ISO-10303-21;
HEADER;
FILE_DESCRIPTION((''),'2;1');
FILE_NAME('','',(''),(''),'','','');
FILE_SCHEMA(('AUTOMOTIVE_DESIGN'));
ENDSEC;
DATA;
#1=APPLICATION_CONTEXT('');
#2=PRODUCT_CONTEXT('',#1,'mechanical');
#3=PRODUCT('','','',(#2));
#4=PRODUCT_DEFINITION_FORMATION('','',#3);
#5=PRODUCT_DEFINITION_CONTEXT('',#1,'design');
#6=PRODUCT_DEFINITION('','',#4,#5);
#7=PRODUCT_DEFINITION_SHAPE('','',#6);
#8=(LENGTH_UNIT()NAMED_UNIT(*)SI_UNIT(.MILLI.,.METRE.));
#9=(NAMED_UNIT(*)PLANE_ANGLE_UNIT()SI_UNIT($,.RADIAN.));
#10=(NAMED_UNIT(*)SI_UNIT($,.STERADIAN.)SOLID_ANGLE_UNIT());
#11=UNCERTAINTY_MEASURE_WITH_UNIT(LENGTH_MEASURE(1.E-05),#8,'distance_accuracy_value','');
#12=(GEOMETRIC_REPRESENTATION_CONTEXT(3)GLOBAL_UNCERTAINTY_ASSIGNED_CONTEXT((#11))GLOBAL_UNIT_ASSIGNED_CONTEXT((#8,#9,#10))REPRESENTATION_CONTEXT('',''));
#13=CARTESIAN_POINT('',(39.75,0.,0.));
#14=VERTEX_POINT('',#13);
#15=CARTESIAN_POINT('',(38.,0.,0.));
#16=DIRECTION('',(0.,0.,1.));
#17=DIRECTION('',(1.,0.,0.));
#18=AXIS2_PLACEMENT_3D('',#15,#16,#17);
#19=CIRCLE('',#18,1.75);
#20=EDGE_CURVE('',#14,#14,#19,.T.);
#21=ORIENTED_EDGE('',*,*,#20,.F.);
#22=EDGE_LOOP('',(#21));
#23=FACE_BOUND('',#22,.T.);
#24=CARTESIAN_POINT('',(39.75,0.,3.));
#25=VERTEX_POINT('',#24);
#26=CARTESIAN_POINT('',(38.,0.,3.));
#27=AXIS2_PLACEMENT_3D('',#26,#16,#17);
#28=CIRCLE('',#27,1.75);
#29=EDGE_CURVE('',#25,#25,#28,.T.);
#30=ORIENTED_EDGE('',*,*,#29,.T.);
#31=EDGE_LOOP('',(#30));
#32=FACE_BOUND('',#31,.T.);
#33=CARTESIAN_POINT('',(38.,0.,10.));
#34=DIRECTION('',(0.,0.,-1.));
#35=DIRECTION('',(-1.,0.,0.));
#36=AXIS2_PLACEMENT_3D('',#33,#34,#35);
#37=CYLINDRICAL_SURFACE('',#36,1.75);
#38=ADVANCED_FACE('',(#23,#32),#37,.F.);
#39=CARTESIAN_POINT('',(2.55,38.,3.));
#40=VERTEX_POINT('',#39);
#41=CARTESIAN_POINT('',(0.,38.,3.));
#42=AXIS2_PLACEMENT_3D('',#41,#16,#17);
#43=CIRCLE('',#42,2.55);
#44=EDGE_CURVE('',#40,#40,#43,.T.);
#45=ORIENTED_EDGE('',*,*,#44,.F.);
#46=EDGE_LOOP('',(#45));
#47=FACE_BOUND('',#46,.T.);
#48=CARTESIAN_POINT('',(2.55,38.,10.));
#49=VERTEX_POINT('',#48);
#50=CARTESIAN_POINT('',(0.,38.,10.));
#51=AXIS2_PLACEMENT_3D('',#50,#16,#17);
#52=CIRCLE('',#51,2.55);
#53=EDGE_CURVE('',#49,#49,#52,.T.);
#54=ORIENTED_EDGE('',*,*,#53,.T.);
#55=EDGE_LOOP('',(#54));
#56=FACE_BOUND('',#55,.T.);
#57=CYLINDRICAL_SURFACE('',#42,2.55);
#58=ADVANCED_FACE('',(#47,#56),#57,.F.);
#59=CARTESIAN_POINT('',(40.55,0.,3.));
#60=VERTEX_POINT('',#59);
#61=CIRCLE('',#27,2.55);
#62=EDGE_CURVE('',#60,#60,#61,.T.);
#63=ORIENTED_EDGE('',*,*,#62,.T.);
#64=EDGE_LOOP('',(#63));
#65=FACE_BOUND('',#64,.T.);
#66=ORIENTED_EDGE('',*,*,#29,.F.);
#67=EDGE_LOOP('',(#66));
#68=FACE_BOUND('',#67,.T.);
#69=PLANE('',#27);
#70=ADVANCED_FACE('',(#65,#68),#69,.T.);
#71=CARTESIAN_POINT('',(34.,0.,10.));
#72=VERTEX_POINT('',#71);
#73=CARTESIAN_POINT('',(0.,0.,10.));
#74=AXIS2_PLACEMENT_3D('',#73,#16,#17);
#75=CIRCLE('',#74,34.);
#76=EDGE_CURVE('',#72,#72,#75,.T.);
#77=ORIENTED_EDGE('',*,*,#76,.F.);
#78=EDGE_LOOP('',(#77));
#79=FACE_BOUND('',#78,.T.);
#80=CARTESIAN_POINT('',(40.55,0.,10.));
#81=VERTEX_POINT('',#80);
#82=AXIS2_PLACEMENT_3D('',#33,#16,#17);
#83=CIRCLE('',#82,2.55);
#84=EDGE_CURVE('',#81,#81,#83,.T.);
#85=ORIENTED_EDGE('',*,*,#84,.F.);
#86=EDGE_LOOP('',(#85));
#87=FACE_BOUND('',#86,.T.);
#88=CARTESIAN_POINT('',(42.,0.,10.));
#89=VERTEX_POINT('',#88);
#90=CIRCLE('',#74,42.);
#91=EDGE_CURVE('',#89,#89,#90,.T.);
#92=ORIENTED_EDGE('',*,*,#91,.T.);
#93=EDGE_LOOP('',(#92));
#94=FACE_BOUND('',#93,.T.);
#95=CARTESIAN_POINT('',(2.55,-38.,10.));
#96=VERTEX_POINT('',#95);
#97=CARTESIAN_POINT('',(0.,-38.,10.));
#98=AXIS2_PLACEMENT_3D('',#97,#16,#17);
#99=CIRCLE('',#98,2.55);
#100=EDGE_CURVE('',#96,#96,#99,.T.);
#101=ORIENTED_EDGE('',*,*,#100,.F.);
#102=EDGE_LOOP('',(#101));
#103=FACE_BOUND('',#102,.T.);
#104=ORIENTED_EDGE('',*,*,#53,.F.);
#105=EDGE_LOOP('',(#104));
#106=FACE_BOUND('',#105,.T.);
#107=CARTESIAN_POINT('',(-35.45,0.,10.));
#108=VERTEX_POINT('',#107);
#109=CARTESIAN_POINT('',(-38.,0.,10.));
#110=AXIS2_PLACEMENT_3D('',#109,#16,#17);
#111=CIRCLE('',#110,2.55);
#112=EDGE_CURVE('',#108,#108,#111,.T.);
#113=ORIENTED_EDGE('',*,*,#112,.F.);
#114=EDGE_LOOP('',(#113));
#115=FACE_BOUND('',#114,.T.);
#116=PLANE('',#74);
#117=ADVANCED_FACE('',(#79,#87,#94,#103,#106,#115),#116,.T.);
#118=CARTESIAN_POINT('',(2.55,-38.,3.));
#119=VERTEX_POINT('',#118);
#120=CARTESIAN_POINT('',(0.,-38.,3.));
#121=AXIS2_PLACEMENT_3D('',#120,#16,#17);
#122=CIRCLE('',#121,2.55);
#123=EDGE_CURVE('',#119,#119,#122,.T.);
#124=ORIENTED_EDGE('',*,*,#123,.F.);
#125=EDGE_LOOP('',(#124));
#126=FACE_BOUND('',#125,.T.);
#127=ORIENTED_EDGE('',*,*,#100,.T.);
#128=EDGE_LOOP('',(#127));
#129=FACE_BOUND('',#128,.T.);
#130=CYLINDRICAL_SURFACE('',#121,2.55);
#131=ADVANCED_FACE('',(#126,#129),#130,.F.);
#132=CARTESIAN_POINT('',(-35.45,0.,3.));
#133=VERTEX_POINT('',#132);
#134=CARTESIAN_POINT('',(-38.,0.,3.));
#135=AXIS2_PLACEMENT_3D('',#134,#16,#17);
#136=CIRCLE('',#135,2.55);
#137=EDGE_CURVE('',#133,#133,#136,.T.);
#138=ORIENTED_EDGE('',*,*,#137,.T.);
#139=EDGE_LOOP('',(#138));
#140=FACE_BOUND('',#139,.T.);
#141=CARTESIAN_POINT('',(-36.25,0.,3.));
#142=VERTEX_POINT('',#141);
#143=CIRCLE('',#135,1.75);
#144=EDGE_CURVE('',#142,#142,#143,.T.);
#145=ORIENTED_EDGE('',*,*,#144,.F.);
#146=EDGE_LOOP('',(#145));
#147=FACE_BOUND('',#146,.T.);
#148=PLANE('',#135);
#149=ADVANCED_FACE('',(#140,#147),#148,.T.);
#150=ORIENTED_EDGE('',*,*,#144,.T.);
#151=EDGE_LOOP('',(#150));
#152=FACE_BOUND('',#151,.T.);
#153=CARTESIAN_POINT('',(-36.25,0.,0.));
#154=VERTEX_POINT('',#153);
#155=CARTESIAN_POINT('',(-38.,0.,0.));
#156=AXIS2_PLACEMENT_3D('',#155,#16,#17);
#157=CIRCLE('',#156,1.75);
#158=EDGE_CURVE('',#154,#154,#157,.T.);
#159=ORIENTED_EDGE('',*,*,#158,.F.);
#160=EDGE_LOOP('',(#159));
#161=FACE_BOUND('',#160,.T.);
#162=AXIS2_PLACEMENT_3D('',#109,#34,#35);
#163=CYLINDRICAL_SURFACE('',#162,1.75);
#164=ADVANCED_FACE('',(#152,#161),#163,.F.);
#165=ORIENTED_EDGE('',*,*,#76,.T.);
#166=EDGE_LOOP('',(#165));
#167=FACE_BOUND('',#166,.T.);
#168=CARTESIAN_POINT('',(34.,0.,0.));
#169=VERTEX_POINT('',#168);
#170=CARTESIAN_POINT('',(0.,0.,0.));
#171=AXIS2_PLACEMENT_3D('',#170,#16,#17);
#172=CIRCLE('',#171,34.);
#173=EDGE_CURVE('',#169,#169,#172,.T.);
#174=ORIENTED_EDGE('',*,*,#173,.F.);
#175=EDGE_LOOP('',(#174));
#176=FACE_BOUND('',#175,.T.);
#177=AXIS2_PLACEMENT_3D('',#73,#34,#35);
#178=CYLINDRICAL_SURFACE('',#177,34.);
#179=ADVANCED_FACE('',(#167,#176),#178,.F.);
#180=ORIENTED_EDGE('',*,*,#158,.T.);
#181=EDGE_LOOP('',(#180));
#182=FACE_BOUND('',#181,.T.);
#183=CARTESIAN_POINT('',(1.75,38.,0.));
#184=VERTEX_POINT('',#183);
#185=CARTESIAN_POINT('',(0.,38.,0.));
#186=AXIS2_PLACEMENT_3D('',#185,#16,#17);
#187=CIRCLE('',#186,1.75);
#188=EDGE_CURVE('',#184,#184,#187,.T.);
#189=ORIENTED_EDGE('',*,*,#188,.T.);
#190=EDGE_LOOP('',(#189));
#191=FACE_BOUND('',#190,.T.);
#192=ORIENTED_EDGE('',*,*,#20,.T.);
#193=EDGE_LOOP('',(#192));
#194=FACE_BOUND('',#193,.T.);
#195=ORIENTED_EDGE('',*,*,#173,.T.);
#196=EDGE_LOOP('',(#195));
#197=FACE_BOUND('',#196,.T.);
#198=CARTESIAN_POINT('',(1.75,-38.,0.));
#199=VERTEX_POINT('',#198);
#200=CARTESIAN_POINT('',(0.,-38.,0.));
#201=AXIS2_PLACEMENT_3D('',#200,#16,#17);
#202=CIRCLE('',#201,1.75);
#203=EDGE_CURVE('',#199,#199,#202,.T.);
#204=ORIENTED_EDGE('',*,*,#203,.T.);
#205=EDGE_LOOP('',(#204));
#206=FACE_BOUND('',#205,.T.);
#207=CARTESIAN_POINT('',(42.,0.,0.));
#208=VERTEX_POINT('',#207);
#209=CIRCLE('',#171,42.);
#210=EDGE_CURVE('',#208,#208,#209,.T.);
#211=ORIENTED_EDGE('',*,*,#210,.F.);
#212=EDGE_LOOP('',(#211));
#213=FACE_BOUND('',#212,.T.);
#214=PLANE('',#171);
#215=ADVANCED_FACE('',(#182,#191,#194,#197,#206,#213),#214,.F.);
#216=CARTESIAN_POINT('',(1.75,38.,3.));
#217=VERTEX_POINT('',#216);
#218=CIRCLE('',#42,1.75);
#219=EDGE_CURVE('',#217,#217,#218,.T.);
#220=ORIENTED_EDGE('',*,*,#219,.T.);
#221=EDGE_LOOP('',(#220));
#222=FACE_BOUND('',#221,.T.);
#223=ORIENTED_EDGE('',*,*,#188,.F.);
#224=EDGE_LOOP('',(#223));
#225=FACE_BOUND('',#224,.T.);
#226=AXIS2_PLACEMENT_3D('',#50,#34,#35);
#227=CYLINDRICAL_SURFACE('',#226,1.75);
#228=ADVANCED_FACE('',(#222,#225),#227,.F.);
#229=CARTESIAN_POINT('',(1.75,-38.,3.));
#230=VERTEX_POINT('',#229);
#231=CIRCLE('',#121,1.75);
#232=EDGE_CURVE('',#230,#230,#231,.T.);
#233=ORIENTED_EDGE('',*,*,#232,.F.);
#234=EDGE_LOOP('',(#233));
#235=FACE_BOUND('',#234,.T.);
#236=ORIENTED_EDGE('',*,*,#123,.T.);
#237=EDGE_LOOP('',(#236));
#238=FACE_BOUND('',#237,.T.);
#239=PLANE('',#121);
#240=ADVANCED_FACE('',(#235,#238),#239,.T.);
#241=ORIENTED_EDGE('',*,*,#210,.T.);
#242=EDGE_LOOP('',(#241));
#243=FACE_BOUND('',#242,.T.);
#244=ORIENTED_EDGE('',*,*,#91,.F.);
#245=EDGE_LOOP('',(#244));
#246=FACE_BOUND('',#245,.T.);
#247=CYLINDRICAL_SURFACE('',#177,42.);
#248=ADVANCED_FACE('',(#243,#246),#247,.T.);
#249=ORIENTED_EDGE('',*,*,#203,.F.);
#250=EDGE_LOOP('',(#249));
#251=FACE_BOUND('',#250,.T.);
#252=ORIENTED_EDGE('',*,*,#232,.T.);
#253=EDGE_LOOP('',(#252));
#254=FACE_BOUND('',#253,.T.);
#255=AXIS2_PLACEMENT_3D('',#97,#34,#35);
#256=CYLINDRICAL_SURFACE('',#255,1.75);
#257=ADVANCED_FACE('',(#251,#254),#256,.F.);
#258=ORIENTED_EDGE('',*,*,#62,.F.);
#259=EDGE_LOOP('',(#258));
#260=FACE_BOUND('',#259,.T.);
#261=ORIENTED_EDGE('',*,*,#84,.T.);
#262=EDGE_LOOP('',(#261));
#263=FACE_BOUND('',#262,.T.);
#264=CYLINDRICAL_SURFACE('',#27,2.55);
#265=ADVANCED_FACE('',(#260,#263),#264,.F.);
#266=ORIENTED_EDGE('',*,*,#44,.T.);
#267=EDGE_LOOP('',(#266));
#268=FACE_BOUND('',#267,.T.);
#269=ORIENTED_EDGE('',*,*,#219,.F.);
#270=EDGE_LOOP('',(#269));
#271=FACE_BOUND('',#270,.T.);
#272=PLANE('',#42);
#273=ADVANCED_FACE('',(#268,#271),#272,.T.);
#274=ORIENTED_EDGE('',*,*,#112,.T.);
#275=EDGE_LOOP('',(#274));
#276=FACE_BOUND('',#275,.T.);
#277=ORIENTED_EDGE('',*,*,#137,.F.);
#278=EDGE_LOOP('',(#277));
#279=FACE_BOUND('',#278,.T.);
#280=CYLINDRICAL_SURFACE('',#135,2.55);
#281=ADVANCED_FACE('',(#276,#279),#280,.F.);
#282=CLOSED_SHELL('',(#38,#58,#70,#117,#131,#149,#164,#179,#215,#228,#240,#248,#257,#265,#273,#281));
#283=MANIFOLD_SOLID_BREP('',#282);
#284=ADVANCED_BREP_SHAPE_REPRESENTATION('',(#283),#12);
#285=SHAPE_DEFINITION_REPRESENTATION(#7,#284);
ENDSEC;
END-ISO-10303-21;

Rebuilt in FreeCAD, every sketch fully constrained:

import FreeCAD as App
import Part
import Sketcher
from FreeCAD import Vector
Q = App.Units.Quantity

doc = App.newDocument("Part")
body = doc.addObject("PartDesign::Body", "Body")

# Sketch on XY plane
sketch1 = doc.addObject("Sketcher::SketchObject", "Sketch")
body.addObject(sketch1)
sketch1.AttachmentSupport = (doc.XY_Plane, [""])
sketch1.MapMode = "FlatFace"
sketch1.addGeometry([
    Part.Circle(Vector(0, 0, 0), Vector(0, 0, 1), 42),  # 0
    Part.Circle(Vector(0, -38, 0), Vector(0, 0, 1), 1.8),  # 1
    Part.Circle(Vector(-38, 0, 0), Vector(0, 0, 1), 1.8),  # 2
    Part.Circle(Vector(0, 0, 0), Vector(0, 0, 1), 34),  # 3
    Part.Circle(Vector(38, 0, 0), Vector(0, 0, 1), 1.8),  # 4
    Part.Circle(Vector(0, 38, 0), Vector(0, 0, 1), 1.8),  # 5
], False)
sketch1.addConstraint([
    Sketcher.Constraint("Coincident", 0, 3, -1, 1),
    Sketcher.Constraint("Coincident", 3, 3, -1, 1),
    Sketcher.Constraint("Equal", 1, 2),
    Sketcher.Constraint("Equal", 2, 4),
    Sketcher.Constraint("Equal", 4, 5),
    Sketcher.Constraint("Symmetric", 2, 3, 4, 3, -1, 1),
    Sketcher.Constraint("Symmetric", 1, 3, 5, 3, -1, 1),
    Sketcher.Constraint("PointOnObject", 1, 3, -2),
    Sketcher.Constraint("PointOnObject", 2, 3, -1),
    Sketcher.Constraint("Diameter", 0, Q("84 mm")),
    Sketcher.Constraint("Diameter", 3, Q("68 mm")),
    Sketcher.Constraint("Diameter", 1, Q("3.5 mm")),
    Sketcher.Constraint("DistanceY", 1, 3, -1, 1, Q("38 mm")),
    Sketcher.Constraint("DistanceX", 2, 3, -1, 1, Q("38 mm")),
])
pad1 = doc.addObject("PartDesign::Pad", "Pad")
body.addObject(pad1)
pad1.Profile = sketch1
pad1.Length = 10

# Sketch on XY plane
sketch2 = doc.addObject("Sketcher::SketchObject", "Sketch001")
body.addObject(sketch2)
sketch2.AttachmentSupport = (doc.XY_Plane, [""])
sketch2.MapMode = "FlatFace"
sketch2.AttachmentOffset = App.Placement(Vector(0, 0, 10), App.Rotation())
sketch2.addGeometry([
    Part.Circle(Vector(0, 38, 0), Vector(0, 0, 1), 2.5),
    Part.Circle(Vector(38, 0, 0), Vector(0, 0, 1), 2.5),
    Part.Circle(Vector(0, -38, 0), Vector(0, 0, 1), 2.5),
    Part.Circle(Vector(-38, 0, 0), Vector(0, 0, 1), 2.5),
], False)
sketch2.addConstraint([
    Sketcher.Constraint("Equal", 0, 1),
    Sketcher.Constraint("Equal", 1, 2),
    Sketcher.Constraint("Equal", 2, 3),
    Sketcher.Constraint("Symmetric", 0, 3, 2, 3, -1, 1),
    Sketcher.Constraint("Symmetric", 1, 3, 3, 3, -1, 1),
    Sketcher.Constraint("PointOnObject", 0, 3, -2),
    Sketcher.Constraint("PointOnObject", 1, 3, -1),
    Sketcher.Constraint("Diameter", 0, Q("5.1 mm")),
    Sketcher.Constraint("DistanceY", -1, 1, 0, 3, Q("38 mm")),
    Sketcher.Constraint("DistanceX", -1, 1, 1, 3, Q("38 mm")),
])
pocket1 = doc.addObject("PartDesign::Pocket", "Pocket")
body.addObject(pocket1)
pocket1.Profile = sketch2
pocket1.Length = 7

doc.recompute()
